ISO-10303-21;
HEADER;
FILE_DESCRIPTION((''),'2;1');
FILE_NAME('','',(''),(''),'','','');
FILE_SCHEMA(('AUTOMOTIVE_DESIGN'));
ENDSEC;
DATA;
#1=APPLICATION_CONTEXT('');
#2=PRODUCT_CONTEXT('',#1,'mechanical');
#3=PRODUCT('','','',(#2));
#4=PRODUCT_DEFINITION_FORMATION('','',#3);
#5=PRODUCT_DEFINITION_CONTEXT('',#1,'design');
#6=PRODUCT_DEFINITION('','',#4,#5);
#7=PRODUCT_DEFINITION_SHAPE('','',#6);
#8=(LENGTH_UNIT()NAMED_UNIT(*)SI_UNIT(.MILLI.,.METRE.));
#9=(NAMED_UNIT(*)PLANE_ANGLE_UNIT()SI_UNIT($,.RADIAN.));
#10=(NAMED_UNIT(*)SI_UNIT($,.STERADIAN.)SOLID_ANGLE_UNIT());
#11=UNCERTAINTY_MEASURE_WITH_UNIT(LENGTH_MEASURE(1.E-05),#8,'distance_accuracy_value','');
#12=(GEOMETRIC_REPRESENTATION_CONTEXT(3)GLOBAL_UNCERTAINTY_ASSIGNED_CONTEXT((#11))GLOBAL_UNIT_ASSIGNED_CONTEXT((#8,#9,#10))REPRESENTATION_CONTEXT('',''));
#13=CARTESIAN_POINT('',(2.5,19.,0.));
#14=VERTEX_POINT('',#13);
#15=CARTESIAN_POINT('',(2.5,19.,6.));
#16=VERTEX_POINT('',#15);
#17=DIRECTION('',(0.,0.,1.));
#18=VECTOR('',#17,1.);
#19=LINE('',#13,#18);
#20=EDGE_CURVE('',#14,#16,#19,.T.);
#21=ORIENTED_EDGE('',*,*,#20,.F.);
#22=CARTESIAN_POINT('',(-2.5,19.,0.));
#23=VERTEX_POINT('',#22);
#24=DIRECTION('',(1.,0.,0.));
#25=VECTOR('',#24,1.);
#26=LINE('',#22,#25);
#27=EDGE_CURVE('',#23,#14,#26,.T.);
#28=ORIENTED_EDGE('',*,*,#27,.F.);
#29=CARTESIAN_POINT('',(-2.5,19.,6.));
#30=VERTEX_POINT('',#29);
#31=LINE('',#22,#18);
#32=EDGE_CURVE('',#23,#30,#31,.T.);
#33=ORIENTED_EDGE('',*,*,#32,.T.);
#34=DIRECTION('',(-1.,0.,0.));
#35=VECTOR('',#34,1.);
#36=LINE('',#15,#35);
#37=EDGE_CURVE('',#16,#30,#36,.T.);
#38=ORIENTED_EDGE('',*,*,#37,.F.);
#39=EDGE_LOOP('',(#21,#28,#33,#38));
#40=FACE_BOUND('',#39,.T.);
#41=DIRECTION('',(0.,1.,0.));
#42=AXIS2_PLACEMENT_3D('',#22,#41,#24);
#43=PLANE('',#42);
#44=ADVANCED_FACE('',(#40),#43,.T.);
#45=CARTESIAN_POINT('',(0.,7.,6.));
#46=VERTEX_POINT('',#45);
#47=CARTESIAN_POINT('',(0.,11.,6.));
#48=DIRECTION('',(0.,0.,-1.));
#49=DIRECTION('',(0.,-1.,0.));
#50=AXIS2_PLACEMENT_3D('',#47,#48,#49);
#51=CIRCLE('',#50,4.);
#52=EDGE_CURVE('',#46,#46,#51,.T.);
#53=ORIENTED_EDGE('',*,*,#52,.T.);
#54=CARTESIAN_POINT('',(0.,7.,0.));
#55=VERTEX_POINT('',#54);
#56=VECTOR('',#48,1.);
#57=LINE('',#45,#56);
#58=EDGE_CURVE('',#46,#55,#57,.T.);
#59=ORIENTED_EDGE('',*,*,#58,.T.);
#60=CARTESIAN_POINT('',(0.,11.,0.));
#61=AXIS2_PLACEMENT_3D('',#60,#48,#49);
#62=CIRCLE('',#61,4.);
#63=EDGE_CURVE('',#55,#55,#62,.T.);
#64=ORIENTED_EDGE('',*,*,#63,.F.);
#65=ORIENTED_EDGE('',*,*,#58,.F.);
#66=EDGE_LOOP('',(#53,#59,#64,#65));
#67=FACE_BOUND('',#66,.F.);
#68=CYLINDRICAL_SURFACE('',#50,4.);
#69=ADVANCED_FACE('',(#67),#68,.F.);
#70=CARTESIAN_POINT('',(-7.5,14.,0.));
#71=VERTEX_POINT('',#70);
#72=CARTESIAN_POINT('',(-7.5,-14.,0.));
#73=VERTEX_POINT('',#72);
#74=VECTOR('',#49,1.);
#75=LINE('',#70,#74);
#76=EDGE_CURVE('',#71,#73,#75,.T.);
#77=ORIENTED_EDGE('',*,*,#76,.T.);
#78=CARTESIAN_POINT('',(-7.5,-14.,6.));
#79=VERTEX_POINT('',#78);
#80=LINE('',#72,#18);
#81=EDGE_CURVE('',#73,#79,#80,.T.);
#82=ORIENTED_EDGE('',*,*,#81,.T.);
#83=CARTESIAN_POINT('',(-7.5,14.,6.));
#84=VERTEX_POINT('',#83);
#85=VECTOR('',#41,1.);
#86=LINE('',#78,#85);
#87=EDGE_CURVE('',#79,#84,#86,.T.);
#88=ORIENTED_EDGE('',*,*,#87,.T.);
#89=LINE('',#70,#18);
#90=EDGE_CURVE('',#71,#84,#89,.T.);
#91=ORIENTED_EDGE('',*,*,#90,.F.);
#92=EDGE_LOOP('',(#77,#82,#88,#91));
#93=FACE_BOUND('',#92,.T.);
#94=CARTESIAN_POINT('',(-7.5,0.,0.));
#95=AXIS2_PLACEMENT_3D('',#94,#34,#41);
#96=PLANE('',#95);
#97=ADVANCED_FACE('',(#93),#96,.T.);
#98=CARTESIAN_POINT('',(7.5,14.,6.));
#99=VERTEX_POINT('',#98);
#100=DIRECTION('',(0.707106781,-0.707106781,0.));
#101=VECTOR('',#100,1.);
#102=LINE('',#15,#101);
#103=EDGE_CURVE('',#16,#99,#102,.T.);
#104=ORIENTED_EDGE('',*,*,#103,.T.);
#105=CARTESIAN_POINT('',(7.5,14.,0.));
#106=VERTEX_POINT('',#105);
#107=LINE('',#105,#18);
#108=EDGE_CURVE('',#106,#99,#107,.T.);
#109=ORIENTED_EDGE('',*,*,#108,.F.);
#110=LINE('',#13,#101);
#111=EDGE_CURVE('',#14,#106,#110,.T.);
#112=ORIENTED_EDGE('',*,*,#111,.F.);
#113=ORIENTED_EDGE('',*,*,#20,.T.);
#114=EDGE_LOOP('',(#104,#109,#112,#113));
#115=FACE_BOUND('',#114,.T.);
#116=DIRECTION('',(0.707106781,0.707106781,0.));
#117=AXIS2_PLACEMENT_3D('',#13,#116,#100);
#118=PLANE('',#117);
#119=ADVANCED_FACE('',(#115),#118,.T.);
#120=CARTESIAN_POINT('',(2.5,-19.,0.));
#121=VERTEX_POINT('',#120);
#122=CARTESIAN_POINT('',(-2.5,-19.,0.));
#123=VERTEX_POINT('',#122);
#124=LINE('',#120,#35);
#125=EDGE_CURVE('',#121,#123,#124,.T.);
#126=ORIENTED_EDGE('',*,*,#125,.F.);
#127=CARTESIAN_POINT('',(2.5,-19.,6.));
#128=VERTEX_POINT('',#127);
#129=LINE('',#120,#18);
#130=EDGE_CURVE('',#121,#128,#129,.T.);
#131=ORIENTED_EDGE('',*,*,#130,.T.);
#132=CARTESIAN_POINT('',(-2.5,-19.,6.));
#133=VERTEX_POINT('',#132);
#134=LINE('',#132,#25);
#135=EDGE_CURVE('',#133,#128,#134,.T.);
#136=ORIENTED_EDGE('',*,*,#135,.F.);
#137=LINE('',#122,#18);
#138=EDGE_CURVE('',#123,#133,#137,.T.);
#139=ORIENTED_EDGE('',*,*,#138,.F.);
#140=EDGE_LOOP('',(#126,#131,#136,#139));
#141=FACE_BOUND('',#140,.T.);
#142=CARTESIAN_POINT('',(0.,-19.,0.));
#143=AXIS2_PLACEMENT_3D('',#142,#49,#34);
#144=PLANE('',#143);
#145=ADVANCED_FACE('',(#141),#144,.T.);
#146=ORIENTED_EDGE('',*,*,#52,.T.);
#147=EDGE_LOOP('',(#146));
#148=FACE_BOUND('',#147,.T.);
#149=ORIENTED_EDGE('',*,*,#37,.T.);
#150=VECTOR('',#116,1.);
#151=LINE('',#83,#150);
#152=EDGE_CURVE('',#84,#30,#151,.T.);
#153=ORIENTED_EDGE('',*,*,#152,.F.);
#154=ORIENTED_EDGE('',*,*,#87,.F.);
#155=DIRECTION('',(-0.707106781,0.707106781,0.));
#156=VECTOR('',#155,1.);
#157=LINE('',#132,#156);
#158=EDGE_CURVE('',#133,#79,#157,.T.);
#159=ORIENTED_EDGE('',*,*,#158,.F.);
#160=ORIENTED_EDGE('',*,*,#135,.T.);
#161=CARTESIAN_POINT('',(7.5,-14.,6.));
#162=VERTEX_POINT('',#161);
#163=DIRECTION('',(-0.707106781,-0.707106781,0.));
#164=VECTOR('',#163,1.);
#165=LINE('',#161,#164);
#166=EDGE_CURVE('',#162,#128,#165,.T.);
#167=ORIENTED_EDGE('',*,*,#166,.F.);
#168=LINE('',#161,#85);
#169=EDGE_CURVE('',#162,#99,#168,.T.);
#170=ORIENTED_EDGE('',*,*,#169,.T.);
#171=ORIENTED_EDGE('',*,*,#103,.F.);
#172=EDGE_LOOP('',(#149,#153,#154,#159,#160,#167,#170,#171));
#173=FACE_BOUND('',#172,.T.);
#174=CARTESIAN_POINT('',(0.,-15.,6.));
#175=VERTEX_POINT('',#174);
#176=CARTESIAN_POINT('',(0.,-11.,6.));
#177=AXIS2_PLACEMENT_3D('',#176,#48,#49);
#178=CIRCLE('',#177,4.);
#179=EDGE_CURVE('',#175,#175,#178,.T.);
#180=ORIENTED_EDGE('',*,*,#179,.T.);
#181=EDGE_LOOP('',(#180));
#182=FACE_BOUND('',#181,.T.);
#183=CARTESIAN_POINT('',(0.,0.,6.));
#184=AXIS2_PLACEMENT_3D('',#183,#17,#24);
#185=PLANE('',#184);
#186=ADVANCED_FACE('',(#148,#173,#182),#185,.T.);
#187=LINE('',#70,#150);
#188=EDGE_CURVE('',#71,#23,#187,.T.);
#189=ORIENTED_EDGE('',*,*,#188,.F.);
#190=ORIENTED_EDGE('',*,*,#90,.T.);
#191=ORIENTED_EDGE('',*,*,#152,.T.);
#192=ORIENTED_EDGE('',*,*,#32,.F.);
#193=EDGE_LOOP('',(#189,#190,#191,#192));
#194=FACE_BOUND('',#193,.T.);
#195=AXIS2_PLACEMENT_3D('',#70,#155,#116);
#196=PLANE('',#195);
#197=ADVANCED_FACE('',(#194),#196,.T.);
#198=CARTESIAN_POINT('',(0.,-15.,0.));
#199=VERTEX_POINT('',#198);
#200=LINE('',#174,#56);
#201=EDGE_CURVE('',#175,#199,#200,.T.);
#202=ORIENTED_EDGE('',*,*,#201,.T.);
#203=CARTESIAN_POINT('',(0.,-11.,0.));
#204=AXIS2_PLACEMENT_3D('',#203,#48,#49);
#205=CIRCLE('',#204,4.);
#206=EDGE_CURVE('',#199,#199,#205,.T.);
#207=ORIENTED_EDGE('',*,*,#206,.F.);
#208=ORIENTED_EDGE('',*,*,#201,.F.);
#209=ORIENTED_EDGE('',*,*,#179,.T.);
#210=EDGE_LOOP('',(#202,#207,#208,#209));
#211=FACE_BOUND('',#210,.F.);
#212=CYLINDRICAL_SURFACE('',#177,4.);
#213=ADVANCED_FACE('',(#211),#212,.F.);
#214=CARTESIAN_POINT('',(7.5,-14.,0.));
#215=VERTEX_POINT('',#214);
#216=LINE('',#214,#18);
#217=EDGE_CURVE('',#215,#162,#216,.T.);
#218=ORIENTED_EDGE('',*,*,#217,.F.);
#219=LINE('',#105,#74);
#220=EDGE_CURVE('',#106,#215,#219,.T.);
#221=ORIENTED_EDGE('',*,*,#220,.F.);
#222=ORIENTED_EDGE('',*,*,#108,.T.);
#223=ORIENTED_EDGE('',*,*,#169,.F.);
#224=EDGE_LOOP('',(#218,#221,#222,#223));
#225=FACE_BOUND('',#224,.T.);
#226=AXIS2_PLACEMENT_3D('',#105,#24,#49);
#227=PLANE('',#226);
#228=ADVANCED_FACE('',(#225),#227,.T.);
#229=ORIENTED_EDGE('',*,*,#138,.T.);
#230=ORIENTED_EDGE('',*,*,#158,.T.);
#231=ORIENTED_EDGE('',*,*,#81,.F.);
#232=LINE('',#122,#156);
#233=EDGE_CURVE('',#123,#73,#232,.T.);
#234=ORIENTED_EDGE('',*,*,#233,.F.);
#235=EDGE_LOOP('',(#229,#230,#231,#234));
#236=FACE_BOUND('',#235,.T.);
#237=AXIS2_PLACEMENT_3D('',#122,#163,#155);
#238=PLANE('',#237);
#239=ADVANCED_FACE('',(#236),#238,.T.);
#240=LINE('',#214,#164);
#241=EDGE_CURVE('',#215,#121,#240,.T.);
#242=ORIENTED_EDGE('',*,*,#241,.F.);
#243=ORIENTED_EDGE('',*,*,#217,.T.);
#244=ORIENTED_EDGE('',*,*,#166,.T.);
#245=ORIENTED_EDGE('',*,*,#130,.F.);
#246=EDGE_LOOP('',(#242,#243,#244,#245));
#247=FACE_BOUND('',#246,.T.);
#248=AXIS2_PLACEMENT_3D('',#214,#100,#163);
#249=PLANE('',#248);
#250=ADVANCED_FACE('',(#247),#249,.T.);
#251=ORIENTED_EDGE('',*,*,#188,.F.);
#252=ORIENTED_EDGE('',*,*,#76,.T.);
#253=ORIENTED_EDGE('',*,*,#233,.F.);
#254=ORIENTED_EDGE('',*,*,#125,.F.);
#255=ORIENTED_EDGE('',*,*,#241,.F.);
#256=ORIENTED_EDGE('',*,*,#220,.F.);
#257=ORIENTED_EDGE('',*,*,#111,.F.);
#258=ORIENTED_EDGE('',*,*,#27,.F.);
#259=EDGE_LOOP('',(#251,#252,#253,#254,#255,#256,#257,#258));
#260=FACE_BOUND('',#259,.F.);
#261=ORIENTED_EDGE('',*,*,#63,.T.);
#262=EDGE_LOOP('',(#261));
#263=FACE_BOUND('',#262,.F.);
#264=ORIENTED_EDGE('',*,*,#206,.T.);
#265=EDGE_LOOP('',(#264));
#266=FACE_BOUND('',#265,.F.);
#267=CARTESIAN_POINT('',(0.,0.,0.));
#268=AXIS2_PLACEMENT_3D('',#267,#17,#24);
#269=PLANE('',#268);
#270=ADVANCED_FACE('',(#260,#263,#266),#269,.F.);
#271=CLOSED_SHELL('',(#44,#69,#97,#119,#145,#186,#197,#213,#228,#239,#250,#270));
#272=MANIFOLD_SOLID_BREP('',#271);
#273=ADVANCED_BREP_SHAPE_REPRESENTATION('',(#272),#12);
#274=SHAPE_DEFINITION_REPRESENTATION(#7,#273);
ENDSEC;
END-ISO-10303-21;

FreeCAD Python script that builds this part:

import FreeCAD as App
import Part
import Sketcher
from FreeCAD import Vector

doc = App.newDocument("Part")
body = doc.addObject("PartDesign::Body", "Body")

# Sketch on XY plane
sketch1 = body.newObject("Sketcher::SketchObject", "Sketch")
sketch1.AttachmentSupport = (doc.getObject("XY_Plane"), [""])
sketch1.MapMode = "FlatFace"
sketch1.addGeometry([
    Part.LineSegment(Vector(-8, 14, 0), Vector(-8, -14, 0)),  # 0
    Part.LineSegment(Vector(-8, -14, 0), Vector(-2, -19, 0)),  # 1
    Part.LineSegment(Vector(-2, -19, 0), Vector(2, -19, 0)),  # 2
    Part.LineSegment(Vector(2, -19, 0), Vector(8, -14, 0)),  # 3
    Part.LineSegment(Vector(8, -14, 0), Vector(8, 14, 0)),  # 4
    Part.LineSegment(Vector(8, 14, 0), Vector(2, 19, 0)),  # 5
    Part.LineSegment(Vector(2, 19, 0), Vector(-2, 19, 0)),  # 6
    Part.LineSegment(Vector(-2, 19, 0), Vector(-8, 14, 0)),  # 7
], False)
sketch1.addConstraint([
    Sketcher.Constraint("Coincident", 0, 2, 1, 1),
    Sketcher.Constraint("Coincident", 1, 2, 2, 1),
    Sketcher.Constraint("Coincident", 2, 2, 3, 1),
    Sketcher.Constraint("Coincident", 3, 2, 4, 1),
    Sketcher.Constraint("Coincident", 4, 2, 5, 1),
    Sketcher.Constraint("Coincident", 5, 2, 6, 1),
    Sketcher.Constraint("Coincident", 6, 2, 7, 1),
    Sketcher.Constraint("Coincident", 7, 2, 0, 1),
    Sketcher.Constraint("Vertical", 0),
    Sketcher.Constraint("Horizontal", 2),
    Sketcher.Constraint("Vertical", 4),
    Sketcher.Constraint("Horizontal", 6),
    Sketcher.Constraint("Symmetric", 0, 2, 4, 2, -1, 1),
    Sketcher.Constraint("Symmetric", 1, 2, 5, 2, -1, 1),
    Sketcher.Constraint("Perpendicular", 1, 3),
    Sketcher.Constraint("Perpendicular", 5, 7),
    Sketcher.Constraint("Horizontal", 0, 2, 3, 2),
    Sketcher.Constraint("Horizontal", 4, 2, 7, 2),
    Sketcher.Constraint("Vertical", 2, 2, 5, 2),
    Sketcher.Constraint("DistanceX", 2, 1, 2, 2, 5.0),
    Sketcher.Constraint("DistanceX", 0, 2, 1, 2, 5.0),
    Sketcher.Constraint("DistanceY", 2, 2, 5, 2, 38.0),
])
pad1 = body.newObject("PartDesign::Pad", "Pad")
pad1.Profile = sketch1
pad1.Length = 6

# Sketch on XY plane
sketch2 = body.newObject("Sketcher::SketchObject", "Sketch001")
sketch2.AttachmentSupport = (doc.getObject("XY_Plane"), [""])
sketch2.MapMode = "FlatFace"
sketch2.AttachmentOffset = App.Placement(Vector(0, 0, 6), App.Rotation())
sketch2.addGeometry([
    Part.Circle(Vector(0, 11, 0), Vector(0, 0, 1), 4),
    Part.Circle(Vector(0, -11, 0), Vector(0, 0, 1), 4),
], False)
sketch2.addConstraint([
    Sketcher.Constraint("Equal", 0, 1),
    Sketcher.Constraint("Symmetric", 0, 3, 1, 3, -1, 1),
    Sketcher.Constraint("PointOnObject", 0, 3, -2),
    Sketcher.Constraint("Diameter", 0, 8.0),
    Sketcher.Constraint("DistanceY", -1, 1, 0, 3, 11.0),
])
doc.recompute()
hole = body.newObject("PartDesign::Hole", "Hole")
hole.Profile = sketch2
hole.ThreadType = "None"
hole.Diameter = 8
hole.DepthType = "ThroughAll"

doc.recompute()
